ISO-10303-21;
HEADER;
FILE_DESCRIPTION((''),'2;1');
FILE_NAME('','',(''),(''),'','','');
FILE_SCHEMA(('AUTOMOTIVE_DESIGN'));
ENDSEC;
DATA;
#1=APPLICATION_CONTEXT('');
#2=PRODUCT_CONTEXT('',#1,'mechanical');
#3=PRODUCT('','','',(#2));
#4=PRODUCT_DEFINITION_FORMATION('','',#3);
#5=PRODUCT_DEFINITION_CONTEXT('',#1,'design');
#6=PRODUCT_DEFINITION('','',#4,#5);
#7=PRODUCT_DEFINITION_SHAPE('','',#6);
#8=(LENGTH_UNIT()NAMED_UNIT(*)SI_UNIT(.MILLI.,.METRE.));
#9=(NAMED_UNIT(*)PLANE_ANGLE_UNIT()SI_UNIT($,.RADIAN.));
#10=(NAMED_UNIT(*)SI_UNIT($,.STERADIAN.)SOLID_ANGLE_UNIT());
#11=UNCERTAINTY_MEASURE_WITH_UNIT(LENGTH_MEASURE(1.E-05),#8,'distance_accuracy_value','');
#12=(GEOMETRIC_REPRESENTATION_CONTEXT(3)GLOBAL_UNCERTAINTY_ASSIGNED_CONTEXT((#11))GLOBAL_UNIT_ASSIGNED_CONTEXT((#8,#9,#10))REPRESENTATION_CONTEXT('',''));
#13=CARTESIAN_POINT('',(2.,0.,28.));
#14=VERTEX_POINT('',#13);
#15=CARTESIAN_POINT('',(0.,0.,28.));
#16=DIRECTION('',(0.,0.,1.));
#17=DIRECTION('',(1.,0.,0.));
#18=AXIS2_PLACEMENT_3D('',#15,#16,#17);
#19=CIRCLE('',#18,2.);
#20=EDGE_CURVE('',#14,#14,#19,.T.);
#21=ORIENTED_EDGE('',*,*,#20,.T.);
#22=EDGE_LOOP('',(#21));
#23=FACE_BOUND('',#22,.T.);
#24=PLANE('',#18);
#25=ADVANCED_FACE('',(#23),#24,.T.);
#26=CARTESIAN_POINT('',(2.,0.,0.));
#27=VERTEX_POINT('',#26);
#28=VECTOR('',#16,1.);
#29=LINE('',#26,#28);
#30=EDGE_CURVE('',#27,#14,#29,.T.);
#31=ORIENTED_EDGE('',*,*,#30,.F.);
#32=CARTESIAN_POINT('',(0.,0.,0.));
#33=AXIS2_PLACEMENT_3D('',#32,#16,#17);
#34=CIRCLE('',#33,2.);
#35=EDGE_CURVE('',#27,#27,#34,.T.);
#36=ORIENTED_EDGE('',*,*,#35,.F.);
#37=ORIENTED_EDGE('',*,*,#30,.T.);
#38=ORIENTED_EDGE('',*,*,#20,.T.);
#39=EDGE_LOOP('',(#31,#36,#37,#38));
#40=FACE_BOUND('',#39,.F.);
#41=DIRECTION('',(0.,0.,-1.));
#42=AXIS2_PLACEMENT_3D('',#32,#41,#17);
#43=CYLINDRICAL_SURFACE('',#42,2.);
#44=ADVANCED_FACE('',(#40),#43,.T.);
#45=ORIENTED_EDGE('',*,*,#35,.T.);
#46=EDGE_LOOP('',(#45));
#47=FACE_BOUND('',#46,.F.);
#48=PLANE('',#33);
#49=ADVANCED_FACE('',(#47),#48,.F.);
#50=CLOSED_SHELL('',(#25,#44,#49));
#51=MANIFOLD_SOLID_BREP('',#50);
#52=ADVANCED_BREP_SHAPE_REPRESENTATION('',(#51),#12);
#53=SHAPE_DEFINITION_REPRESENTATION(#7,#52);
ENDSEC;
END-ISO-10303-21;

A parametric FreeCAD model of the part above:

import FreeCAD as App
import Part
import Sketcher

V = App.Vector

doc = App.newDocument("Part")
params = doc.addObject("Spreadsheet::Sheet", "Params")
for row, (alias, value) in enumerate([
    ("sketch1_diameter", "4 mm"),
    ("pad1_length", "28 mm"),
], start=1):
    params.set(f"A{row}", alias)
    params.set(f"B{row}", "=" + value)
    params.setAlias(f"B{row}", alias)

body = doc.addObject("PartDesign::Body", "Body")

# Sketch on XY plane
sketch1 = body.newObject("Sketcher::SketchObject", "Sketch")
sketch1.AttachmentSupport = (doc.getObject("XY_Plane"), [""])
sketch1.MapMode = "FlatFace"
sketch1.addGeometry(Part.Circle(V(0, 0, 0), V(0, 0, 1), 2), False)
sketch1.addConstraint([
    Sketcher.Constraint("Coincident", 0, 3, -1, 1),
    Sketcher.Constraint("Diameter", 0, 4.0),
])
sketch1.setExpression("Constraints[1]", "Params.sketch1_diameter")
pad1 = body.newObject("PartDesign::Pad", "Pad")
pad1.Profile = sketch1
pad1.setExpression("Length", "Params.pad1_length")

doc.recompute()
